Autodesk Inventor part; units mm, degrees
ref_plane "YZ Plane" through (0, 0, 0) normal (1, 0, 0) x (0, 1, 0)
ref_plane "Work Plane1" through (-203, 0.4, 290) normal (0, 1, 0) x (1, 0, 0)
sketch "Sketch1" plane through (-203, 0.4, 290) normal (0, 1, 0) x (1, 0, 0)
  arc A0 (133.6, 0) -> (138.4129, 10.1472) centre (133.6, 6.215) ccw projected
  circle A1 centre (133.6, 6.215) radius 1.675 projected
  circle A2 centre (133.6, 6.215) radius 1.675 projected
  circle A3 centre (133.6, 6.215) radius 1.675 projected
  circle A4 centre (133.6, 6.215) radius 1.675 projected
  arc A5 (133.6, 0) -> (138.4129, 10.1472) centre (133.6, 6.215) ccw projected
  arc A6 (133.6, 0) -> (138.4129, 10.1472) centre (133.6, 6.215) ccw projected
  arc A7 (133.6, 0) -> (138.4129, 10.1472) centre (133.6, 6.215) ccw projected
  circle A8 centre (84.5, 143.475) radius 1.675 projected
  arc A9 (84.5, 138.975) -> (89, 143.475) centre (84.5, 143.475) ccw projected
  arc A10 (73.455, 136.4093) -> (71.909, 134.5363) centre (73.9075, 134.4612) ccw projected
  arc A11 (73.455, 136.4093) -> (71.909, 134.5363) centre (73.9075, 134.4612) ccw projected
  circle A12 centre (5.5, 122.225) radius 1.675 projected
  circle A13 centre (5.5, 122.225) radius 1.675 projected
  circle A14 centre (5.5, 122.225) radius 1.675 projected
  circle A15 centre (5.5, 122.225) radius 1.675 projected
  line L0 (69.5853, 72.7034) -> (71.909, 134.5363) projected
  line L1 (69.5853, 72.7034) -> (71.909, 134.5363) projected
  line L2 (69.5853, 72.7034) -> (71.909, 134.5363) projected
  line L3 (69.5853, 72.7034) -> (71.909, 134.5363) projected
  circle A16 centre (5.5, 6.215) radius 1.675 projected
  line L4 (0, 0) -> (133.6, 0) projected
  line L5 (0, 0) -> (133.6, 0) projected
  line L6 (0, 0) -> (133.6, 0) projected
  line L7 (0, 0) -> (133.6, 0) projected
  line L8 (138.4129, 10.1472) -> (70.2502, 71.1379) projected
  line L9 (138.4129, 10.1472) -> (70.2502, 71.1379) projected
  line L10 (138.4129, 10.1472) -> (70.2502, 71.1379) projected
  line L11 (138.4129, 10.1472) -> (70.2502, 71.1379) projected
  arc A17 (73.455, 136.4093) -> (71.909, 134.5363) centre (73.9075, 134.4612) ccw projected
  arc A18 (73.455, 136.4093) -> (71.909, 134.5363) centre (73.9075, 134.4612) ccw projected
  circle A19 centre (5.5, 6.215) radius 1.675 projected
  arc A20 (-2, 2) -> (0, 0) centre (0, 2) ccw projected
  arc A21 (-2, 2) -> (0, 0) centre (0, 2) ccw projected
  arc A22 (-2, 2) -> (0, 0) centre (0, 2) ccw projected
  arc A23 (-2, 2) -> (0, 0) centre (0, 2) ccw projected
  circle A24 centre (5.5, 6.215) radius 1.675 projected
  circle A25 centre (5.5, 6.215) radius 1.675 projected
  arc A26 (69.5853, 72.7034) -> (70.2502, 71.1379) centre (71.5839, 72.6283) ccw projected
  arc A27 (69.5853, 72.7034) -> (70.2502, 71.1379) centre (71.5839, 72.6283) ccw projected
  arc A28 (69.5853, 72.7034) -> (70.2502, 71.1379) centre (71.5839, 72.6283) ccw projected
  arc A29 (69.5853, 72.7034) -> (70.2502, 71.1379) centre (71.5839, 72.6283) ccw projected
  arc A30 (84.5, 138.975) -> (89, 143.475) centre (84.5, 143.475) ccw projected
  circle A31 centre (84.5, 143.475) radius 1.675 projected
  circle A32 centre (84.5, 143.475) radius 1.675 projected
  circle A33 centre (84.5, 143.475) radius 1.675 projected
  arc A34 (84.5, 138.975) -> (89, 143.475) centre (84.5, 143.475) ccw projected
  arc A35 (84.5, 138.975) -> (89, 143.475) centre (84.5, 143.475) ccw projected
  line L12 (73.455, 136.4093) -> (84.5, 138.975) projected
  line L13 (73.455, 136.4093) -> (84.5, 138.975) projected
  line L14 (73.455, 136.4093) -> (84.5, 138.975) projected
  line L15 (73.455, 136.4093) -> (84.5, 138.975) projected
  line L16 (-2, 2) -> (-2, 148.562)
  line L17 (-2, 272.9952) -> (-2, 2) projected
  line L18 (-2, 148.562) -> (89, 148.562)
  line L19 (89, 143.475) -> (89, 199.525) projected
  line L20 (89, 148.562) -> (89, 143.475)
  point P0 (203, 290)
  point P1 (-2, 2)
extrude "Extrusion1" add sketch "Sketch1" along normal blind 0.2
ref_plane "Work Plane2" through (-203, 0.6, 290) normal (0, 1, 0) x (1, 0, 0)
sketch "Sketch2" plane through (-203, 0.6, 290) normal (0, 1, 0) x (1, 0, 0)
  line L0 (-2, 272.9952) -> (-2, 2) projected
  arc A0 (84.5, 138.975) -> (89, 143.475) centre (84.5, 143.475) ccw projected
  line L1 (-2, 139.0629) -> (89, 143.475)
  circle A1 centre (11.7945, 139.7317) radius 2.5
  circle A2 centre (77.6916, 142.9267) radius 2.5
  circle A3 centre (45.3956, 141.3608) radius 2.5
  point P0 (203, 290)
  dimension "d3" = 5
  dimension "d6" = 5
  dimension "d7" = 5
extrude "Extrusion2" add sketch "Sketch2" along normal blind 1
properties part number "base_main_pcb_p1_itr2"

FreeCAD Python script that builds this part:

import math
import FreeCAD as App
import Part
import Sketcher
Q = App.Units.Quantity

doc = App.newDocument("Part")
params = doc.addObject("Spreadsheet::Sheet", "Params")
for row, (alias, value) in enumerate([
    ("sketch1_radius", "2 mm"),
    ("sketch1_radius2", "4.5 mm"),
    ("sketch1_diameter", "3.35 mm"),
    ("sketch1_width", "91 mm"),
    ("sketch1_width2", "133.6 mm"),
    ("pad1_length", "0.2 mm"),
    ("sketch2_diameter", "5 mm"),
    ("pad2_length", "1 mm"),
], start=1):
    params.set(f"A{row}", alias)
    params.set(f"B{row}", "=" + value)
    params.setAlias(f"B{row}", alias)

body = doc.addObject("PartDesign::Body", "Body")

# Sketch on XZ plane
sketch1 = body.newObject("Sketcher::SketchObject", "Sketch")
sketch1.AttachmentSupport = (doc.getObject("XZ_Plane"), [""])
sketch1.MapMode = "FlatFace"
sketch1.AttachmentOffset = App.Placement(App.Vector(0, 0, -0.4), App.Rotation())
sketch1.addGeometry([
    Part.LineSegment(App.Vector(-203, 290, 0), App.Vector(-69.4, 290, 0)),  # 0
    Part.ArcOfCircle(Part.Circle(App.Vector(-69.4, 283.8, 0), App.Vector(0, 0, 1), 6.2), math.radians(-39), math.radians(90)),  # 1
    Part.LineSegment(App.Vector(-64.6, 279.9, 0), App.Vector(-132.7, 218.9, 0)),  # 2
    Part.ArcOfCircle(Part.Circle(App.Vector(-131.4, 217.4, 0), App.Vector(0, 0, 1), 2), math.radians(132), math.radians(182)),  # 3
    Part.LineSegment(App.Vector(-133.4, 217.3, 0), App.Vector(-131.1, 155.5, 0)),  # 4
    Part.ArcOfCircle(Part.Circle(App.Vector(-129.1, 155.5, 0), App.Vector(0, 0, 1), 2), math.radians(-178), math.radians(-103)),  # 5
    Part.LineSegment(App.Vector(-129.5, 153.6, 0), App.Vector(-118.5, 151, 0)),  # 6
    Part.ArcOfCircle(Part.Circle(App.Vector(-118.5, 146.5, 0), App.Vector(0, 0, 1), 4.5), math.radians(0), math.radians(90)),  # 7
    Part.LineSegment(App.Vector(-114, 146.5, 0), App.Vector(-114, 141.4, 0)),  # 8
    Part.LineSegment(App.Vector(-114, 141.4, 0), App.Vector(-205, 141.4, 0)),  # 9
    Part.LineSegment(App.Vector(-205, 141.4, 0), App.Vector(-205, 288, 0)),  # 10
    Part.ArcOfCircle(Part.Circle(App.Vector(-203, 288, 0), App.Vector(0, 0, 1), 2), math.radians(90), math.radians(180)),  # 11
    Part.Circle(App.Vector(-197.5, 283.8, 0), App.Vector(0, 0, 1), 1.7),  # 12
    Part.Circle(App.Vector(-69.4, 283.8, 0), App.Vector(0, 0, 1), 1.7),  # 13
    Part.Circle(App.Vector(-197.5, 167.8, 0), App.Vector(0, 0, 1), 1.7),  # 14
    Part.Circle(App.Vector(-118.5, 146.5, 0), App.Vector(0, 0, 1), 1.7),  # 15
], False)
sketch1.addConstraint([
    Sketcher.Constraint("Tangent", 0, 2, 1, 2),
    Sketcher.Constraint("Coincident", 1, 1, 2, 1),
    Sketcher.Constraint("Tangent", 2, 2, 3, 1),
    Sketcher.Constraint("Tangent", 3, 2, 4, 1),
    Sketcher.Constraint("Tangent", 4, 2, 5, 1),
    Sketcher.Constraint("Tangent", 5, 2, 6, 1),
    Sketcher.Constraint("Coincident", 6, 2, 7, 2),
    Sketcher.Constraint("Tangent", 7, 1, 8, 1),
    Sketcher.Constraint("Coincident", 8, 2, 9, 1),
    Sketcher.Constraint("Coincident", 9, 2, 10, 1),
    Sketcher.Constraint("Tangent", 10, 2, 11, 2),
    Sketcher.Constraint("Tangent", 11, 1, 0, 1),
    Sketcher.Constraint("Horizontal", 0),
    Sketcher.Constraint("Vertical", 8),
    Sketcher.Constraint("Horizontal", 9),
    Sketcher.Constraint("Vertical", 10),
    Sketcher.Constraint("Coincident", 13, 3, 1, 3),
    Sketcher.Constraint("Coincident", 15, 3, 7, 3),
    Sketcher.Constraint("Equal", 3, 5),
    Sketcher.Constraint("Equal", 5, 11),
    Sketcher.Constraint("Equal", 12, 13),
    Sketcher.Constraint("Equal", 13, 14),
    Sketcher.Constraint("Equal", 14, 15),
    Sketcher.Constraint("Horizontal", 1, 3, 12, 3),
    Sketcher.Constraint("Vertical", 12, 3, 14, 3),
    Sketcher.Constraint("Vertical", 15, 3, 6, 2),
    Sketcher.Constraint("Radius", 3, Q("2 mm")),
    Sketcher.Constraint("Radius", 7, Q("4.5 mm")),
    Sketcher.Constraint("Diameter", 12, Q("3.35 mm")),
    Sketcher.Constraint("DistanceX", 9, 2, 9, 1, Q("91 mm")),
    Sketcher.Constraint("DistanceX", 0, 1, 0, 2, Q("133.6 mm")),
    Sketcher.Constraint("DistanceX", 11, 3, -1, 1, Q("203 mm")),
    Sketcher.Constraint("DistanceY", -1, 1, 11, 3, Q("288 mm")),
    Sketcher.Constraint("Radius", 1, Q("6.215 mm")),
    Sketcher.Constraint("DistanceX", 12, 3, 7, 3, Q("79 mm")),
    Sketcher.Constraint("DistanceY", 8, 2, 8, 1, Q("5.087 mm")),
    Sketcher.Constraint("DistanceY", 10, 1, 10, 2, Q("146.562 mm")),
    Sketcher.Constraint("DistanceY", 7, 3, 14, 3, Q("21.25 mm")),
    Sketcher.Constraint("Distance", 2, Q("91.466 mm")),
    Sketcher.Constraint("Distance", 6, Q("11.339 mm")),
    Sketcher.Constraint("DistanceX", 3, 3, -1, 1, Q("131.416 mm")),
    Sketcher.Constraint("DistanceX", 1, 1, -1, 1, Q("64.587 mm")),
    Sketcher.Constraint("DistanceX", 4, 2, -1, 1, Q("131.091 mm")),
])
sketch1.setExpression("Constraints[26]", "Params.sketch1_radius")
sketch1.setExpression("Constraints[27]", "Params.sketch1_radius2")
sketch1.setExpression("Constraints[28]", "Params.sketch1_diameter")
sketch1.setExpression("Constraints[29]", "Params.sketch1_width")
sketch1.setExpression("Constraints[30]", "Params.sketch1_width2")
pad1 = body.newObject("PartDesign::Pad", "Pad")
pad1.Profile = sketch1
pad1.setExpression("Length", "Params.pad1_length")
pad1.Reversed = True

# Sketch on XZ plane
sketch2 = body.newObject("Sketcher::SketchObject", "Sketch001")
sketch2.AttachmentSupport = (doc.getObject("XZ_Plane"), [""])
sketch2.MapMode = "FlatFace"
sketch2.AttachmentOffset = App.Placement(App.Vector(0, 0, -0.6), App.Rotation())
sketch2.addGeometry([
    Part.Circle(App.Vector(-191.2, 150.3, 0), App.Vector(0, 0, 1), 2.5),
    Part.Circle(App.Vector(-125.3, 147.1, 0), App.Vector(0, 0, 1), 2.5),
    Part.Circle(App.Vector(-157.6, 148.6, 0), App.Vector(0, 0, 1), 2.5),
], False)
sketch2.addConstraint([
    Sketcher.Constraint("Equal", 0, 1),
    Sketcher.Constraint("Equal", 1, 2),
    Sketcher.Constraint("Diameter", 0, Q("5 mm")),
    Sketcher.Constraint("DistanceX", 0, 3, 1, 3, Q("65.897 mm")),
    Sketcher.Constraint("DistanceY", 1, 3, 0, 3, Q("3.195 mm")),
    Sketcher.Constraint("DistanceX", 2, 3, 1, 3, Q("32.296 mm")),
    Sketcher.Constraint("DistanceY", 1, 3, 2, 3, Q("1.566 mm")),
    Sketcher.Constraint("DistanceX", 0, 3, -1, 1, Q("191.2055 mm")),
    Sketcher.Constraint("DistanceY", -1, 1, 0, 3, Q("150.2683 mm")),
])
sketch2.setExpression("Constraints[2]", "Params.sketch2_diameter")
pad2 = body.newObject("PartDesign::Pad", "Pad001")
pad2.Profile = sketch2
pad2.setExpression("Length", "Params.pad2_length")
pad2.Reversed = True

doc.recompute()
